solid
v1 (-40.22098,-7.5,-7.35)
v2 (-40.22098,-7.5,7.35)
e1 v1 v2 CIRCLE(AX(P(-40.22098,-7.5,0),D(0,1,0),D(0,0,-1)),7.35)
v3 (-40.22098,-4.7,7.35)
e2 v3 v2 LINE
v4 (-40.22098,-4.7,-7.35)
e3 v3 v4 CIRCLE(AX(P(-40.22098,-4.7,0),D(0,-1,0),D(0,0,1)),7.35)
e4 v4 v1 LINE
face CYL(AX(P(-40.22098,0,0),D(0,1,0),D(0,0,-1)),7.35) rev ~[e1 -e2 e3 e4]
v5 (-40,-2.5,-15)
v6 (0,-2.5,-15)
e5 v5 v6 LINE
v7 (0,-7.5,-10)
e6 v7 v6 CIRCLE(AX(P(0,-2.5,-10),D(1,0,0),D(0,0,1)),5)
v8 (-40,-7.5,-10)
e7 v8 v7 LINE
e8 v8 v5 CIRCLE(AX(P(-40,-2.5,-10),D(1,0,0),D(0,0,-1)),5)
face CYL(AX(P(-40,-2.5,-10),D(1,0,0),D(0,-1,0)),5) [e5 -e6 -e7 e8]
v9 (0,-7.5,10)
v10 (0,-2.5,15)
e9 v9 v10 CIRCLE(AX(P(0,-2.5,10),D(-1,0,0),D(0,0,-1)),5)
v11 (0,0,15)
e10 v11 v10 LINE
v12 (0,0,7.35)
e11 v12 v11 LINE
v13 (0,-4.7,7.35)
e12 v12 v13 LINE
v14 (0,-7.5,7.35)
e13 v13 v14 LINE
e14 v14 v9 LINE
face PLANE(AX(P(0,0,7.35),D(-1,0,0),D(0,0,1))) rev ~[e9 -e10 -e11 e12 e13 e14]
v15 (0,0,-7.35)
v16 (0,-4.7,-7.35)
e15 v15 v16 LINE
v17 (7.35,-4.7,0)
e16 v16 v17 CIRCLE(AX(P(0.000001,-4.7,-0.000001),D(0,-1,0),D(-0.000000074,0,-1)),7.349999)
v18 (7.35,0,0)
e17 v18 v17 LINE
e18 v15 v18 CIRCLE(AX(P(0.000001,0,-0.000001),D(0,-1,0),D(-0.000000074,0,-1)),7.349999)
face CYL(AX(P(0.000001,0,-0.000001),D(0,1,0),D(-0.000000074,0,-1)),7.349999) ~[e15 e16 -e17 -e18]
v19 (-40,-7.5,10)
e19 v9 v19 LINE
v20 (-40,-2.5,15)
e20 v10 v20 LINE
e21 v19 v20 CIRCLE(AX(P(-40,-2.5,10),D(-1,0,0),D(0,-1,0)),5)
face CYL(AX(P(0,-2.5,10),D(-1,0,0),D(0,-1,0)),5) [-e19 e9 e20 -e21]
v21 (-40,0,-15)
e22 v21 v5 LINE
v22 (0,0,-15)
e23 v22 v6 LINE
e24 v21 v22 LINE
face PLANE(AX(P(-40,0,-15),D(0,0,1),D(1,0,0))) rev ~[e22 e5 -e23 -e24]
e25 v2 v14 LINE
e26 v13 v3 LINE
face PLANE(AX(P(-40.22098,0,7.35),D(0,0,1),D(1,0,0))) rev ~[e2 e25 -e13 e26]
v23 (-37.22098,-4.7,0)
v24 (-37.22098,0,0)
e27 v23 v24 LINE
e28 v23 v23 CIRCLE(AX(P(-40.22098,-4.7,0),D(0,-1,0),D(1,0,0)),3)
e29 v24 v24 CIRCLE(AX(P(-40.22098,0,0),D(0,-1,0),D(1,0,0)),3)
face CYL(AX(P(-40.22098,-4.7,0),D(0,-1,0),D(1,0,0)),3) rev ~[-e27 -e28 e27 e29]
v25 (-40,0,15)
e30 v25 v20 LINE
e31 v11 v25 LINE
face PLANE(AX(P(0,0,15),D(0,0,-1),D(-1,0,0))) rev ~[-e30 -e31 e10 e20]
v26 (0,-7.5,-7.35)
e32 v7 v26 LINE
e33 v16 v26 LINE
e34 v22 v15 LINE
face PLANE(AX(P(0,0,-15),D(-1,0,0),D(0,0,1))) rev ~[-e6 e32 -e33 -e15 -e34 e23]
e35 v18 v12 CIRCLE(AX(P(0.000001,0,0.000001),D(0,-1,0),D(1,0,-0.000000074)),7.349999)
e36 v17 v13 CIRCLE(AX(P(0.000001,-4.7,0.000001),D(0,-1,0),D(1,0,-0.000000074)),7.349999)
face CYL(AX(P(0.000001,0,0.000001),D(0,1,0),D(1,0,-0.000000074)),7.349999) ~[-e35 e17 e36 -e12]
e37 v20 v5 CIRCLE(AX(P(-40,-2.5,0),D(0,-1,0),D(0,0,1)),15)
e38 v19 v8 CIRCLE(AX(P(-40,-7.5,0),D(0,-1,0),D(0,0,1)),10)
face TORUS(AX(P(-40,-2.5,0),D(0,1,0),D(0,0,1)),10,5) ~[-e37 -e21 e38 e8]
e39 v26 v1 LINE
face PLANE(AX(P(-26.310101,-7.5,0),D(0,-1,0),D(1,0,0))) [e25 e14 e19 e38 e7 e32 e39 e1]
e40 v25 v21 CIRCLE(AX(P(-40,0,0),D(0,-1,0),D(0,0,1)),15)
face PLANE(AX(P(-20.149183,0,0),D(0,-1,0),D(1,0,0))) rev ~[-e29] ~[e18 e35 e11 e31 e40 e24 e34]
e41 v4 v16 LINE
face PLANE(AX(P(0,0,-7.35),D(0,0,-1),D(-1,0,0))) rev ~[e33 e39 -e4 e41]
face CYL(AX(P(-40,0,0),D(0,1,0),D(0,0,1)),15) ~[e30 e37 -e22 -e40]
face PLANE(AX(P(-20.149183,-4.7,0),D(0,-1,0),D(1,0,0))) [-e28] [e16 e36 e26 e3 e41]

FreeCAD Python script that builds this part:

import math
import FreeCAD as App
import Part
import Sketcher

V = App.Vector


def edges_at(feature, points):
    """Names of the edges that pass closest to the given points."""
    edges = feature.Shape.Edges
    near = lambda p: min(range(len(edges)), key=lambda i: edges[i].distToShape(Part.Vertex(*p))[0])
    return sorted({f"Edge{near(p) + 1}" for p in points})

doc = App.newDocument("Part")
params = doc.addObject("Spreadsheet::Sheet", "Params")
for row, (alias, value) in enumerate([
    ("sketch1_radius", "15 mm"),
    ("sketch1_width", "40 mm"),
    ("sketch1_radius2", "7.35 mm"),
    ("pad1_length", "7.5 mm"),
    ("sketch2_radius", "7.35 mm"),
    ("pad2_length", "4.7 mm"),
    ("fillet_radius", "5 mm"),
    ("sketch3_diameter", "6 mm"),
    ("pocket1_length", "25 mm"),
], start=1):
    params.set(f"A{row}", alias)
    params.set(f"B{row}", "=" + value)
    params.setAlias(f"B{row}", alias)

body = doc.addObject("PartDesign::Body", "Body")

sketch1 = body.newObject("Sketcher::SketchObject", "Sketch")
sketch1.AttachmentSupport = (doc.getObject("XZ_Plane"), [""])
sketch1.MapMode = "FlatFace"
sketch1.addGeometry(Part.LineSegment(V(-40.22098, 7.35, 0), V(0, 7.35, 0)), False)
sketch1.addGeometry(Part.LineSegment(V(0, 7.35, 0), V(0, 15, 0)), False)
sketch1.addGeometry(Part.LineSegment(V(0, 15, 0), V(-40, 15, 0)), False)
sketch1.addGeometry(Part.ArcOfCircle(Part.Circle(V(-40, 0, 0), V(0, 0, 1), 15), math.radians(90), math.radians(270)), False)
sketch1.addGeometry(Part.LineSegment(V(-40, -15, 0), V(0, -15, 0)), False)
sketch1.addGeometry(Part.LineSegment(V(0, -15, 0), V(0, -7.35, 0)), False)
sketch1.addGeometry(Part.LineSegment(V(0, -7.35, 0), V(-40.22098, -7.35, 0)), False)
sketch1.addGeometry(Part.ArcOfCircle(Part.Circle(V(-40.22098, 0, 0), V(0, 0, 1), 7.35), math.radians(90), math.radians(270)), False)
sketch1.addConstraint(Sketcher.Constraint("Coincident", 0, 2, 1, 1))
sketch1.addConstraint(Sketcher.Constraint("Coincident", 1, 2, 2, 1))
sketch1.addConstraint(Sketcher.Constraint("Tangent", 2, 2, 3, 1))
sketch1.addConstraint(Sketcher.Constraint("Tangent", 3, 2, 4, 1))
sketch1.addConstraint(Sketcher.Constraint("Coincident", 4, 2, 5, 1))
sketch1.addConstraint(Sketcher.Constraint("Coincident", 5, 2, 6, 1))
sketch1.addConstraint(Sketcher.Constraint("Tangent", 6, 2, 7, 2))
sketch1.addConstraint(Sketcher.Constraint("Tangent", 7, 1, 0, 1))
sketch1.addConstraint(Sketcher.Constraint("Horizontal", 0))
sketch1.addConstraint(Sketcher.Constraint("Vertical", 1))
sketch1.addConstraint(Sketcher.Constraint("Horizontal", 2))
sketch1.addConstraint(Sketcher.Constraint("Horizontal", 4))
sketch1.addConstraint(Sketcher.Constraint("Vertical", 5))
sketch1.addConstraint(Sketcher.Constraint("Horizontal", 6))
sketch1.addConstraint(Sketcher.Constraint("Symmetric", 1, 2, 4, 2, -1, 1))
sketch1.addConstraint(Sketcher.Constraint("Symmetric", 0, 2, 5, 2, -1))
sketch1.addConstraint(Sketcher.Constraint("Radius", 3, 15.0))
sketch1.addConstraint(Sketcher.Constraint("DistanceX", 2, 2, 2, 1, 40.0))
sketch1.addConstraint(Sketcher.Constraint("Radius", 7, 7.35))
sketch1.addConstraint(Sketcher.Constraint("DistanceX", 0, 1, 0, 2, 40.22098))
sketch1.setExpression("Constraints[16]", "Params.sketch1_radius")
sketch1.setExpression("Constraints[17]", "Params.sketch1_width")
sketch1.setExpression("Constraints[18]", "Params.sketch1_radius2")
pad1 = body.newObject("PartDesign::Pad", "Pad")
pad1.Profile = sketch1
pad1.setExpression("Length", "Params.pad1_length")

sketch2 = body.newObject("Sketcher::SketchObject", "Sketch001")
sketch2.AttachmentSupport = (doc.getObject("XZ_Plane"), [""])
sketch2.MapMode = "FlatFace"
sketch2.addGeometry(Part.LineSegment(V(0, 7.35, 0), V(-40.22098, 7.35, 0)), False)
sketch2.addGeometry(Part.ArcOfCircle(Part.Circle(V(-40.22098, 0, 0), V(0, 0, 1), 7.35), math.radians(90), math.radians(270)), False)
sketch2.addGeometry(Part.LineSegment(V(-40.22098, -7.35, 0), V(0, -7.35, 0)), False)
sketch2.addGeometry(Part.ArcOfCircle(Part.Circle(V(0.000001, -0.000001, 0), V(0, 0, 1), 7.349999), math.radians(-90.000004), math.radians(0.000004)), False)
sketch2.addGeometry(Part.ArcOfCircle(Part.Circle(V(0.000001, 0.000001, 0), V(0, 0, 1), 7.349999), math.radians(-0.000004), math.radians(90.000004)), False)
sketch2.addConstraint(Sketcher.Constraint("Tangent", 0, 2, 1, 1))
sketch2.addConstraint(Sketcher.Constraint("Tangent", 1, 2, 2, 1))
sketch2.addConstraint(Sketcher.Constraint("Tangent", 2, 2, 3, 1))
sketch2.addConstraint(Sketcher.Constraint("Tangent", 3, 2, 4, 1))
sketch2.addConstraint(Sketcher.Constraint("Tangent", 4, 2, 0, 1))
sketch2.addConstraint(Sketcher.Constraint("Horizontal", 0))
sketch2.addConstraint(Sketcher.Constraint("Horizontal", 2))
sketch2.addConstraint(Sketcher.Constraint("Coincident", 3, 3, -1, 1))
sketch2.addConstraint(Sketcher.Constraint("Equal", 1, 3))
sketch2.addConstraint(Sketcher.Constraint("PointOnObject", 3, 2, -1))
sketch2.addConstraint(Sketcher.Constraint("Radius", 1, 7.35))
sketch2.addConstraint(Sketcher.Constraint("DistanceX", 0, 2, 0, 1, 40.22098))
sketch2.setExpression("Constraints[10]", "Params.sketch2_radius")
pad2 = body.newObject("PartDesign::Pad", "Pad001")
pad2.Profile = sketch2
pad2.setExpression("Length", "Params.pad2_length")
doc.recompute()

fillet = body.newObject("PartDesign::Fillet", "Fillet")
fillet.Base = (pad2, edges_at(pad2, [(-20, -7.5, 15)]))
fillet.setExpression("Radius", "Params.fillet_radius")

sketch3 = body.newObject("Sketcher::SketchObject", "Sketch002")
sketch3.AttachmentSupport = (doc.getObject("XZ_Plane"), [""])
sketch3.MapMode = "FlatFace"
sketch3.AttachmentOffset = App.Placement(V(0, 0, 4.7), App.Rotation())
sketch3.addGeometry(Part.Circle(V(-40.22098, 0, 0), V(0, 0, 1), 3), False)
sketch3.addConstraint(Sketcher.Constraint("PointOnObject", 0, 3, -1))
sketch3.addConstraint(Sketcher.Constraint("Diameter", 0, 6.0))
sketch3.addConstraint(Sketcher.Constraint("DistanceX", 0, 3, -1, 1, 40.22098))
sketch3.setExpression("Constraints[1]", "Params.sketch3_diameter")
pocket1 = body.newObject("PartDesign::Pocket", "Pocket")
pocket1.Profile = sketch3
pocket1.setExpression("Length", "Params.pocket1_length")

doc.recompute()
